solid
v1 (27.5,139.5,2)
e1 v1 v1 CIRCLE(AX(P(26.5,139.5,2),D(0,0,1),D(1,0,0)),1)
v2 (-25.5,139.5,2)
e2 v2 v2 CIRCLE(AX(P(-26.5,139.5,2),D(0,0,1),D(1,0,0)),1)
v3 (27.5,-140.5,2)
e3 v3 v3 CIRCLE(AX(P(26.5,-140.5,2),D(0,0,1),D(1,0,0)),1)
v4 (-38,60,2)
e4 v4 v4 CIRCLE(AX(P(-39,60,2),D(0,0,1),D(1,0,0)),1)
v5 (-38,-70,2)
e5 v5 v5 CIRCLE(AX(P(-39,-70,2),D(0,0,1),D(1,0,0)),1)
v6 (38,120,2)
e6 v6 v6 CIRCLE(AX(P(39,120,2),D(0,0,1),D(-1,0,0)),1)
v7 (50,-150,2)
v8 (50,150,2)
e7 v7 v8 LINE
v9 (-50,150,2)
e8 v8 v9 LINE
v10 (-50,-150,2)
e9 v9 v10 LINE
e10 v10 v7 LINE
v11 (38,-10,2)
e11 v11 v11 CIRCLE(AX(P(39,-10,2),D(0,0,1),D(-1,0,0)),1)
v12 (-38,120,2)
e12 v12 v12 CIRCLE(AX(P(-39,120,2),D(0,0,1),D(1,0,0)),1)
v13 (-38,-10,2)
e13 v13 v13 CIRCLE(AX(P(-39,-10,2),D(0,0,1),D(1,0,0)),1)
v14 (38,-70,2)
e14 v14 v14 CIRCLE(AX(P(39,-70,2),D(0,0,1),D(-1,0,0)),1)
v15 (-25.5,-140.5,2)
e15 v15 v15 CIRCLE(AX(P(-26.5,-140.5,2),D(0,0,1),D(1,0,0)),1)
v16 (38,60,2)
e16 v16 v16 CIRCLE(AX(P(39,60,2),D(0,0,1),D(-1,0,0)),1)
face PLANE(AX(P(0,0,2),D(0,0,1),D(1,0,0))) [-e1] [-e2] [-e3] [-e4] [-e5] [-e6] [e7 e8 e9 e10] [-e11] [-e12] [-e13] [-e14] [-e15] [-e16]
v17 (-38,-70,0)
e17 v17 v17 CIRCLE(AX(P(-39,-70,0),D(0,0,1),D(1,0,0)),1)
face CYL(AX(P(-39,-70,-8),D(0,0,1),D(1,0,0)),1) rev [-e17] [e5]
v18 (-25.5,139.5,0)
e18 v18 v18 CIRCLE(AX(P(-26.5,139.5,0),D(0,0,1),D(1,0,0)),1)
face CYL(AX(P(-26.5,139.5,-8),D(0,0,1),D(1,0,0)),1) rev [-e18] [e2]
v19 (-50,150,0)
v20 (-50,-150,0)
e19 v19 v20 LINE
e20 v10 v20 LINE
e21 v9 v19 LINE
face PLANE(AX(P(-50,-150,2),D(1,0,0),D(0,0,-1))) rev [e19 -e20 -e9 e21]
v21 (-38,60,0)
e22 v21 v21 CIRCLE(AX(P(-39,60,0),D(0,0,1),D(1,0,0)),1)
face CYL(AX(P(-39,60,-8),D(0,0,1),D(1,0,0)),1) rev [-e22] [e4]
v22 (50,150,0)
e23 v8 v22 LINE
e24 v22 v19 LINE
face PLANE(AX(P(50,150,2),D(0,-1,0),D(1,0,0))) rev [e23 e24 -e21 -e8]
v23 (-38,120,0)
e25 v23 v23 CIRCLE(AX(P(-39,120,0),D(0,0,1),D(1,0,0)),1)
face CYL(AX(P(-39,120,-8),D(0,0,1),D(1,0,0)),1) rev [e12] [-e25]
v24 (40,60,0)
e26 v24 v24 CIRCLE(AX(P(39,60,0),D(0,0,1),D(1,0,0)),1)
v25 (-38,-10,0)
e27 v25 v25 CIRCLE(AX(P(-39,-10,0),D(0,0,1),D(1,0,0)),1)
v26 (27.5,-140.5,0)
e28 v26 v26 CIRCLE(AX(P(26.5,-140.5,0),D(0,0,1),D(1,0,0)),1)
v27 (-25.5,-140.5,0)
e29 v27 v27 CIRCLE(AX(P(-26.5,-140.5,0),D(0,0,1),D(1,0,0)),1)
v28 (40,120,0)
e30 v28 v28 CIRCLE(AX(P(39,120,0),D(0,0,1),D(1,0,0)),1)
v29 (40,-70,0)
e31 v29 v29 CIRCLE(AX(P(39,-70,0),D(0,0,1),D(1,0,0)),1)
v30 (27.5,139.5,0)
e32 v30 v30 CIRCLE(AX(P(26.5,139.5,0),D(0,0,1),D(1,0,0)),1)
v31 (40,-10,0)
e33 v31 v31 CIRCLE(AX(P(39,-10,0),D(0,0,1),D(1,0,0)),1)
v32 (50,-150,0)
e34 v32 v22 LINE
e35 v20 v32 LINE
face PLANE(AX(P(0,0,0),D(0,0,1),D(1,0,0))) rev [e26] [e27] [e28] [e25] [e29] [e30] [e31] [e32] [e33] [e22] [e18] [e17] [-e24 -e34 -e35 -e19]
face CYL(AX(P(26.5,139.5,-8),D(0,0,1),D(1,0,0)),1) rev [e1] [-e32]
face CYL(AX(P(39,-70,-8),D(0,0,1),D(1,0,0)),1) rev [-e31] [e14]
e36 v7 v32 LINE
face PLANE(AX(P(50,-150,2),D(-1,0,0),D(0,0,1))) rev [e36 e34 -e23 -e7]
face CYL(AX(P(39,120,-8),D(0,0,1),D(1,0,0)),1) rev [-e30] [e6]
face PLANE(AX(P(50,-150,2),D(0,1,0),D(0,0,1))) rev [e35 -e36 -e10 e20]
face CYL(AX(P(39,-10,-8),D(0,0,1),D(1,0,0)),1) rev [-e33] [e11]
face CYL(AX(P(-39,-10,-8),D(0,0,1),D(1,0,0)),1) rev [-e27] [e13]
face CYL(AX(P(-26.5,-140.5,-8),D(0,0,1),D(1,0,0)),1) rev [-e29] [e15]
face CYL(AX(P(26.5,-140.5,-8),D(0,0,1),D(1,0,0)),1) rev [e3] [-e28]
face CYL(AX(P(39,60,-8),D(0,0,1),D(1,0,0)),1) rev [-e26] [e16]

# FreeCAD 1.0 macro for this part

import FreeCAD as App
import Part
import Sketcher
Q = App.Units.Quantity


def add_polygon(sketch, points):
    """Adds a closed chain of lines whose ends are joined by coincident constraints."""
    first, n = sketch.GeometryCount, len(points)
    for a, b in zip(points, points[1:] + points[:1]):
        sketch.addGeometry(Part.LineSegment(App.Vector(*a, 0), App.Vector(*b, 0)), False)
    for i in range(n):
        sketch.addConstraint(Sketcher.Constraint("Coincident", first + i, 2, first + (i + 1) % n, 1))

doc = App.newDocument("Part")
body = doc.addObject("PartDesign::Body", "Body")

# Sketch on XY plane
sketch1 = doc.addObject("Sketcher::SketchObject", "Sketch")
body.addObject(sketch1)
sketch1.AttachmentSupport = (doc.XY_Plane, [""])
sketch1.MapMode = "FlatFace"
add_polygon(sketch1, [(-50, 150), (-50, -150), (50, -150), (50, 150)])  # lines 0-3
sketch1.addConstraint([
    Sketcher.Constraint("Vertical", 0),
    Sketcher.Constraint("Horizontal", 1),
    Sketcher.Constraint("Vertical", 2),
    Sketcher.Constraint("Horizontal", 3),
    Sketcher.Constraint("Symmetric", 0, 2, 2, 2, -1, 1),
    Sketcher.Constraint("DistanceX", 1, 1, 1, 2, Q("100 mm")),
    Sketcher.Constraint("DistanceY", 0, 2, 0, 1, Q("300 mm")),
])
pad1 = doc.addObject("PartDesign::Pad", "Pad")
body.addObject(pad1)
pad1.Profile = sketch1
pad1.Length = 2

# Sketch on XY plane
sketch2 = doc.addObject("Sketcher::SketchObject", "Sketch001")
body.addObject(sketch2)
sketch2.AttachmentSupport = (doc.XY_Plane, [""])
sketch2.MapMode = "FlatFace"
sketch2.AttachmentOffset = App.Placement(App.Vector(0, 0, 2), App.Rotation())
sketch2.addGeometry([
    Part.Circle(App.Vector(-39, 120, 0), App.Vector(0, 0, 1), 1),  # 0
    Part.Circle(App.Vector(-39, 60, 0), App.Vector(0, 0, 1), 1),  # 1
    Part.Circle(App.Vector(-39, -10, 0), App.Vector(0, 0, 1), 1),  # 2
    Part.Circle(App.Vector(-39, -70, 0), App.Vector(0, 0, 1), 1),  # 3
    Part.Circle(App.Vector(39, -70, 0), App.Vector(0, 0, 1), 1),  # 4
    Part.Circle(App.Vector(39, -10, 0), App.Vector(0, 0, 1), 1),  # 5
    Part.Circle(App.Vector(39, 60, 0), App.Vector(0, 0, 1), 1),  # 6
    Part.Circle(App.Vector(39, 120, 0), App.Vector(0, 0, 1), 1),  # 7
], False)
sketch2.addConstraint([
    Sketcher.Constraint("Equal", 0, 1),
    Sketcher.Constraint("Equal", 1, 2),
    Sketcher.Constraint("Equal", 2, 3),
    Sketcher.Constraint("Equal", 3, 4),
    Sketcher.Constraint("Equal", 4, 5),
    Sketcher.Constraint("Equal", 5, 6),
    Sketcher.Constraint("Equal", 6, 7),
    Sketcher.Constraint("Symmetric", 3, 3, 4, 3, -2),
    Sketcher.Constraint("Symmetric", 2, 3, 5, 3, -2),
    Sketcher.Constraint("Symmetric", 1, 3, 6, 3, -2),
    Sketcher.Constraint("Symmetric", 0, 3, 7, 3, -2),
    Sketcher.Constraint("Vertical", 0, 3, 1, 3),
    Sketcher.Constraint("Vertical", 1, 3, 2, 3),
    Sketcher.Constraint("Vertical", 2, 3, 3, 3),
    Sketcher.Constraint("Diameter", 0, Q("2 mm")),
    Sketcher.Constraint("DistanceX", 0, 3, -1, 1, Q("39 mm")),
    Sketcher.Constraint("DistanceY", -1, 1, 0, 3, Q("120 mm")),
    Sketcher.Constraint("DistanceY", -1, 1, 1, 3, Q("60 mm")),
    Sketcher.Constraint("DistanceY", 2, 3, -1, 1, Q("10 mm")),
    Sketcher.Constraint("DistanceY", 3, 3, -1, 1, Q("70 mm")),
])
pocket1 = doc.addObject("PartDesign::Pocket", "Pocket")
body.addObject(pocket1)
pocket1.Profile = sketch2
pocket1.Length = 10

# Sketch on XY plane
sketch3 = doc.addObject("Sketcher::SketchObject", "Sketch002")
body.addObject(sketch3)
sketch3.AttachmentSupport = (doc.XY_Plane, [""])
sketch3.MapMode = "FlatFace"
sketch3.AttachmentOffset = App.Placement(App.Vector(0, 0, 2), App.Rotation())
sketch3.addGeometry([
    Part.Circle(App.Vector(-26.5, -140.5, 0), App.Vector(0, 0, 1), 1),
    Part.Circle(App.Vector(26.5, -140.5, 0), App.Vector(0, 0, 1), 1),
    Part.Circle(App.Vector(-26.5, 139.5, 0), App.Vector(0, 0, 1), 1),
    Part.Circle(App.Vector(26.5, 139.5, 0), App.Vector(0, 0, 1), 1),
], False)
sketch3.addConstraint([
    Sketcher.Constraint("Equal", 0, 1),
    Sketcher.Constraint("Equal", 1, 2),
    Sketcher.Constraint("Equal", 2, 3),
    Sketcher.Constraint("Symmetric", 0, 3, 1, 3, -2),
    Sketcher.Constraint("Symmetric", 2, 3, 3, 3, -2),
    Sketcher.Constraint("Vertical", 0, 3, 2, 3),
    Sketcher.Constraint("Diameter", 0, Q("2 mm")),
    Sketcher.Constraint("DistanceX", 0, 3, 1, 3, Q("53 mm")),
    Sketcher.Constraint("DistanceY", 0, 3, 2, 3, Q("280 mm")),
    Sketcher.Constraint("DistanceY", 0, 3, -1, 1, Q("140.5 mm")),
])
pocket2 = doc.addObject("PartDesign::Pocket", "Pocket001")
body.addObject(pocket2)
pocket2.Profile = sketch3
pocket2.Length = 10

doc.recompute()
